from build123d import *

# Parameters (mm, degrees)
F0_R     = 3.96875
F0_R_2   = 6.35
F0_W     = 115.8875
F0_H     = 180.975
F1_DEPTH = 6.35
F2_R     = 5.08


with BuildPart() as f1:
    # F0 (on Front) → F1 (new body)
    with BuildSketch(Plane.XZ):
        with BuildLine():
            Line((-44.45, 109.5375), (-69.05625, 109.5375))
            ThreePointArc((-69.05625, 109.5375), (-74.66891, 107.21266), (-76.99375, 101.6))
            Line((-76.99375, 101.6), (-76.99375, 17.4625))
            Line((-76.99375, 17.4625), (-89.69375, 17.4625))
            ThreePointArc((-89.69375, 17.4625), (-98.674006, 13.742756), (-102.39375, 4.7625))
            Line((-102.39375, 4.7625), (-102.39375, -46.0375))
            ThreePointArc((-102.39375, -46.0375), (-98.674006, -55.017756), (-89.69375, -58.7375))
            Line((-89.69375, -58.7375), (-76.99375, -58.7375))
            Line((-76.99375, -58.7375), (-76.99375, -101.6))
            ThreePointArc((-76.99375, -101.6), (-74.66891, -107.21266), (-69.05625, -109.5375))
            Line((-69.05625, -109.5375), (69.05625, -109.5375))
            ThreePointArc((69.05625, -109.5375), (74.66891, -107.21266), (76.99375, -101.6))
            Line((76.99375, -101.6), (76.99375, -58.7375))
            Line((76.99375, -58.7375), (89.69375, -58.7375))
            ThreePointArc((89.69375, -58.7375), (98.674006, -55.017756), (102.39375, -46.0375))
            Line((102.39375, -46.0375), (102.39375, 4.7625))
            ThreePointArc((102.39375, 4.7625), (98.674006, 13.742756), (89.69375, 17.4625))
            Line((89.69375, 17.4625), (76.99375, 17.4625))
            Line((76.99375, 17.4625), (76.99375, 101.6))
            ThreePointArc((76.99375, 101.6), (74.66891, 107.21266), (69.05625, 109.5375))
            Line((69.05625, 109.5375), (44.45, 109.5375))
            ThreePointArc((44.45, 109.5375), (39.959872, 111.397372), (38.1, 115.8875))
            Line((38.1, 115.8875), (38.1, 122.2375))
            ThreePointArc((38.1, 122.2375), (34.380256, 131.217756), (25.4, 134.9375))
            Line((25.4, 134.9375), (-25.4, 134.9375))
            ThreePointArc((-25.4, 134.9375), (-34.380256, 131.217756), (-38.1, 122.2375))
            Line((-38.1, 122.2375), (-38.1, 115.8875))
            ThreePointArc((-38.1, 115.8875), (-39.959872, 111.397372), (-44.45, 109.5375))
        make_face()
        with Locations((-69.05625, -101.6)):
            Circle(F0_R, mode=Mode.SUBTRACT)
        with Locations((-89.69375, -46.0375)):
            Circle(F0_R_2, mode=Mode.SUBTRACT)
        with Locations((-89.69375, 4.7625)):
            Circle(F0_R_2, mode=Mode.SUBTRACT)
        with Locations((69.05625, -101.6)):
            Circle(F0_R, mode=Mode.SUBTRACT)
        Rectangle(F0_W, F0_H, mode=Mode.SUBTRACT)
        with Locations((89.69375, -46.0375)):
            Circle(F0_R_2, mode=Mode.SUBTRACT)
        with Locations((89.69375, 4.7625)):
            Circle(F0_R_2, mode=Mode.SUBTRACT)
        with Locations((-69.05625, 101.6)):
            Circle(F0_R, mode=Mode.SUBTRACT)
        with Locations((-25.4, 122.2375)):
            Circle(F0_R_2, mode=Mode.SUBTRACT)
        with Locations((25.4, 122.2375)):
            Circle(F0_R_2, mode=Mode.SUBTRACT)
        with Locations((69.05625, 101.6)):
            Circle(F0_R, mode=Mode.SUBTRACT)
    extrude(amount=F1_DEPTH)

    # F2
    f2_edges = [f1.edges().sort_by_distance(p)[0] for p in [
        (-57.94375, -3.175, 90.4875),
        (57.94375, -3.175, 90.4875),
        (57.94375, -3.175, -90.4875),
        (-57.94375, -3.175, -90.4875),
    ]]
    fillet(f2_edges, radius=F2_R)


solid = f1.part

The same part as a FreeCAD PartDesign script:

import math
import FreeCAD as App
import Part
import Sketcher
from FreeCAD import Vector
Q = App.Units.Quantity


def edges_at(feature, points):
    """Names of the edges that pass closest to the given points."""
    edges = feature.Shape.Edges
    near = lambda p: min(range(len(edges)), key=lambda i: edges[i].distToShape(Part.Vertex(*p))[0])
    return sorted({f"Edge{near(p) + 1}" for p in points})

doc = App.newDocument("Part")
body = doc.addObject("PartDesign::Body", "Body")

# Sketch on XZ plane
sketch1 = body.newObject("Sketcher::SketchObject", "Sketch")
sketch1.AttachmentSupport = (doc.getObject("XZ_Plane"), [""])
sketch1.MapMode = "FlatFace"
sketch1.addGeometry([
    Part.LineSegment(Vector(-44.5, 109.5, 0), Vector(-69.1, 109.5, 0)),  # 0
    Part.ArcOfCircle(Part.Circle(Vector(-69.1, 101.6, 0), Vector(0, 0, 1), 7.9), math.radians(90), math.radians(180)),  # 1
    Part.LineSegment(Vector(-77, 101.6, 0), Vector(-77, 17.5, 0)),  # 2
    Part.LineSegment(Vector(-77, 17.5, 0), Vector(-89.7, 17.5, 0)),  # 3
    Part.ArcOfCircle(Part.Circle(Vector(-89.7, 4.8, 0), Vector(0, 0, 1), 12.7), math.radians(90), math.radians(180)),  # 4
    Part.LineSegment(Vector(-102.4, 4.8, 0), Vector(-102.4, -46, 0)),  # 5
    Part.ArcOfCircle(Part.Circle(Vector(-89.7, -46, 0), Vector(0, 0, 1), 12.7), math.radians(-180), math.radians(-90)),  # 6
    Part.LineSegment(Vector(-89.7, -58.7, 0), Vector(-77, -58.7, 0)),  # 7
    Part.LineSegment(Vector(-77, -58.7, 0), Vector(-77, -101.6, 0)),  # 8
    Part.ArcOfCircle(Part.Circle(Vector(-69.1, -101.6, 0), Vector(0, 0, 1), 7.9), math.radians(-180), math.radians(-90)),  # 9
    Part.LineSegment(Vector(-69.1, -109.5, 0), Vector(69.1, -109.5, 0)),  # 10
    Part.ArcOfCircle(Part.Circle(Vector(69.1, -101.6, 0), Vector(0, 0, 1), 7.9), math.radians(-90), math.radians(0)),  # 11
    Part.LineSegment(Vector(77, -101.6, 0), Vector(77, -58.7, 0)),  # 12
    Part.LineSegment(Vector(77, -58.7, 0), Vector(89.7, -58.7, 0)),  # 13
    Part.ArcOfCircle(Part.Circle(Vector(89.7, -46, 0), Vector(0, 0, 1), 12.7), math.radians(-90), math.radians(0)),  # 14
    Part.LineSegment(Vector(102.4, -46, 0), Vector(102.4, 4.8, 0)),  # 15
    Part.ArcOfCircle(Part.Circle(Vector(89.7, 4.8, 0), Vector(0, 0, 1), 12.7), math.radians(0), math.radians(90)),  # 16
    Part.LineSegment(Vector(89.7, 17.5, 0), Vector(77, 17.5, 0)),  # 17
    Part.LineSegment(Vector(77, 17.5, 0), Vector(77, 101.6, 0)),  # 18
    Part.ArcOfCircle(Part.Circle(Vector(69.1, 101.6, 0), Vector(0, 0, 1), 7.9), math.radians(0), math.radians(90)),  # 19
    Part.LineSegment(Vector(69.1, 109.5, 0), Vector(44.5, 109.5, 0)),  # 20
    Part.ArcOfCircle(Part.Circle(Vector(44.5, 115.9, 0), Vector(0, 0, 1), 6.4), math.radians(-180), math.radians(-90)),  # 21
    Part.LineSegment(Vector(38.1, 115.9, 0), Vector(38.1, 122.2, 0)),  # 22
    Part.ArcOfCircle(Part.Circle(Vector(25.4, 122.2, 0), Vector(0, 0, 1), 12.7), math.radians(0), math.radians(90)),  # 23
    Part.LineSegment(Vector(25.4, 134.9, 0), Vector(-25.4, 134.9, 0)),  # 24
    Part.ArcOfCircle(Part.Circle(Vector(-25.4, 122.2, 0), Vector(0, 0, 1), 12.7), math.radians(90), math.radians(180)),  # 25
    Part.LineSegment(Vector(-38.1, 122.2, 0), Vector(-38.1, 115.9, 0)),  # 26
    Part.ArcOfCircle(Part.Circle(Vector(-44.5, 115.9, 0), Vector(0, 0, 1), 6.4), math.radians(-90), math.radians(0)),  # 27
    Part.Circle(Vector(-69.1, -101.6, 0), Vector(0, 0, 1), 4),  # 28
    Part.Circle(Vector(-89.7, -46, 0), Vector(0, 0, 1), 6.3),  # 29
    Part.Circle(Vector(-89.7, 4.8, 0), Vector(0, 0, 1), 6.3),  # 30
    Part.Circle(Vector(69.1, -101.6, 0), Vector(0, 0, 1), 4),  # 31
    Part.LineSegment(Vector(57.9, -90.5, 0), Vector(-57.9, -90.5, 0)),  # 32
    Part.LineSegment(Vector(-57.9, -90.5, 0), Vector(-57.9, 90.5, 0)),  # 33
    Part.LineSegment(Vector(-57.9, 90.5, 0), Vector(57.9, 90.5, 0)),  # 34
    Part.LineSegment(Vector(57.9, 90.5, 0), Vector(57.9, -90.5, 0)),  # 35
    Part.Circle(Vector(89.7, -46, 0), Vector(0, 0, 1), 6.3),  # 36
    Part.Circle(Vector(89.7, 4.8, 0), Vector(0, 0, 1), 6.3),  # 37
    Part.Circle(Vector(-69.1, 101.6, 0), Vector(0, 0, 1), 4),  # 38
    Part.Circle(Vector(-25.4, 122.2, 0), Vector(0, 0, 1), 6.3),  # 39
    Part.Circle(Vector(25.4, 122.2, 0), Vector(0, 0, 1), 6.3),  # 40
    Part.Circle(Vector(69.1, 101.6, 0), Vector(0, 0, 1), 4),  # 41
], False)
sketch1.addConstraint([
    Sketcher.Constraint("Tangent", 0, 2, 1, 1),
    Sketcher.Constraint("Tangent", 1, 2, 2, 1),
    Sketcher.Constraint("Coincident", 2, 2, 3, 1),
    Sketcher.Constraint("Tangent", 3, 2, 4, 1),
    Sketcher.Constraint("Tangent", 4, 2, 5, 1),
    Sketcher.Constraint("Tangent", 5, 2, 6, 1),
    Sketcher.Constraint("Tangent", 6, 2, 7, 1),
    Sketcher.Constraint("Coincident", 7, 2, 8, 1),
    Sketcher.Constraint("Tangent", 8, 2, 9, 1),
    Sketcher.Constraint("Tangent", 9, 2, 10, 1),
    Sketcher.Constraint("Tangent", 10, 2, 11, 1),
    Sketcher.Constraint("Tangent", 11, 2, 12, 1),
    Sketcher.Constraint("Coincident", 12, 2, 13, 1),
    Sketcher.Constraint("Tangent", 13, 2, 14, 1),
    Sketcher.Constraint("Tangent", 14, 2, 15, 1),
    Sketcher.Constraint("Tangent", 15, 2, 16, 1),
    Sketcher.Constraint("Tangent", 16, 2, 17, 1),
    Sketcher.Constraint("Coincident", 17, 2, 18, 1),
    Sketcher.Constraint("Tangent", 18, 2, 19, 1),
    Sketcher.Constraint("Tangent", 19, 2, 20, 1),
    Sketcher.Constraint("Tangent", 20, 2, 21, 2),
    Sketcher.Constraint("Tangent", 21, 1, 22, 1),
    Sketcher.Constraint("Tangent", 22, 2, 23, 1),
    Sketcher.Constraint("Tangent", 23, 2, 24, 1),
    Sketcher.Constraint("Tangent", 24, 2, 25, 1),
    Sketcher.Constraint("Tangent", 25, 2, 26, 1),
    Sketcher.Constraint("Tangent", 26, 2, 27, 2),
    Sketcher.Constraint("Tangent", 27, 1, 0, 1),
    Sketcher.Constraint("Coincident", 32, 2, 33, 1),
    Sketcher.Constraint("Coincident", 33, 2, 34, 1),
    Sketcher.Constraint("Coincident", 34, 2, 35, 1),
    Sketcher.Constraint("Coincident", 35, 2, 32, 1),
    Sketcher.Constraint("Horizontal", 0),
    Sketcher.Constraint("Vertical", 2),
    Sketcher.Constraint("Horizontal", 3),
    Sketcher.Constraint("Vertical", 5),
    Sketcher.Constraint("Horizontal", 7),
    Sketcher.Constraint("Vertical", 8),
    Sketcher.Constraint("Horizontal", 10),
    Sketcher.Constraint("Vertical", 12),
    Sketcher.Constraint("Horizontal", 13),
    Sketcher.Constraint("Vertical", 15),
    Sketcher.Constraint("Horizontal", 17),
    Sketcher.Constraint("Vertical", 18),
    Sketcher.Constraint("Horizontal", 20),
    Sketcher.Constraint("Vertical", 22),
    Sketcher.Constraint("Horizontal", 24),
    Sketcher.Constraint("Vertical", 26),
    Sketcher.Constraint("Horizontal", 32),
    Sketcher.Constraint("Vertical", 33),
    Sketcher.Constraint("Horizontal", 34),
    Sketcher.Constraint("Vertical", 35),
    Sketcher.Constraint("Coincident", 28, 3, 9, 3),
    Sketcher.Constraint("Coincident", 29, 3, 6, 3),
    Sketcher.Constraint("Coincident", 30, 3, 4, 3),
    Sketcher.Constraint("Coincident", 31, 3, 11, 3),
    Sketcher.Constraint("Coincident", 36, 3, 14, 3),
    Sketcher.Constraint("Coincident", 37, 3, 16, 3),
    Sketcher.Constraint("Coincident", 38, 3, 1, 3),
    Sketcher.Constraint("Coincident", 39, 3, 25, 3),
    Sketcher.Constraint("Coincident", 40, 3, 23, 3),
    Sketcher.Constraint("Coincident", 41, 3, 19, 3),
    Sketcher.Constraint("Equal", 4, 6),
    Sketcher.Constraint("Equal", 1, 9),
    Sketcher.Constraint("Equal", 9, 11),
    Sketcher.Constraint("Equal", 6, 14),
    Sketcher.Constraint("Equal", 14, 16),
    Sketcher.Constraint("Equal", 11, 19),
    Sketcher.Constraint("Equal", 16, 23),
    Sketcher.Constraint("Equal", 23, 25),
    Sketcher.Constraint("Equal", 21, 27),
    Sketcher.Constraint("Equal", 27, 29),
    Sketcher.Constraint("Equal", 29, 30),
    Sketcher.Constraint("Equal", 28, 31),
    Sketcher.Constraint("Equal", 30, 36),
    Sketcher.Constraint("Equal", 36, 37),
    Sketcher.Constraint("Equal", 31, 38),
    Sketcher.Constraint("Equal", 37, 39),
    Sketcher.Constraint("Equal", 39, 40),
    Sketcher.Constraint("Equal", 38, 41),
    Sketcher.Constraint("Symmetric", 1, 3, 11, 3, -1, 1),
    Sketcher.Constraint("Symmetric", 9, 3, 19, 3, -1, 1),
    Sketcher.Constraint("Symmetric", 32, 2, 34, 2, -1, 1),
    Sketcher.Constraint("Symmetric", 6, 3, 14, 3, -2),
    Sketcher.Constraint("Symmetric", 2, 2, 17, 2, -2),
    Sketcher.Constraint("Equal", 0, 20),
    Sketcher.Constraint("Equal", 24, 5),
    Sketcher.Constraint("Diameter", 29, Q("0.5 in")),
    Sketcher.Constraint("Radius", 4, Q("0.5 in")),
    Sketcher.Constraint("DistanceX", 24, 2, 24, 1, Q("2 in")),
    Sketcher.Constraint("Diameter", 28, Q("0.3125 in")),
    Sketcher.Constraint("DistanceX", 3, 2, 3, 1, Q("0.5 in")),
    Sketcher.Constraint("DistanceY", -1, 1, 1, 3, Q("4 in")),
    Sketcher.Constraint("Radius", 1, Q("0.3125 in")),
    Sketcher.Constraint("DistanceY", 9, 2, 7, 2, Q("2 in")),
    Sketcher.Constraint("DistanceY", 0, 2, 24, 2, Q("1 in")),
    Sketcher.Constraint("DistanceX", 0, 2, 0, 1, Q("0.96875 in")),
    Sketcher.Constraint("DistanceX", 32, 2, 32, 1, Q("4.5625 in")),
    Sketcher.Constraint("DistanceY", 33, 1, 33, 2, Q("7.125 in")),
])
pad1 = body.newObject("PartDesign::Pad", "Pad")
pad1.Profile = sketch1
pad1.Length = Q("0.25 in")
doc.recompute()

fillet = body.newObject("PartDesign::Fillet", "Fillet")
fillet.Base = (pad1, edges_at(pad1, [
    (-57.944, -3.175, 90.487),
    (57.944, -3.175, 90.487),
    (57.944, -3.175, -90.487),
    (-57.944, -3.175, -90.487),
]))
fillet.Radius = Q("0.2 in")

doc.recompute()
